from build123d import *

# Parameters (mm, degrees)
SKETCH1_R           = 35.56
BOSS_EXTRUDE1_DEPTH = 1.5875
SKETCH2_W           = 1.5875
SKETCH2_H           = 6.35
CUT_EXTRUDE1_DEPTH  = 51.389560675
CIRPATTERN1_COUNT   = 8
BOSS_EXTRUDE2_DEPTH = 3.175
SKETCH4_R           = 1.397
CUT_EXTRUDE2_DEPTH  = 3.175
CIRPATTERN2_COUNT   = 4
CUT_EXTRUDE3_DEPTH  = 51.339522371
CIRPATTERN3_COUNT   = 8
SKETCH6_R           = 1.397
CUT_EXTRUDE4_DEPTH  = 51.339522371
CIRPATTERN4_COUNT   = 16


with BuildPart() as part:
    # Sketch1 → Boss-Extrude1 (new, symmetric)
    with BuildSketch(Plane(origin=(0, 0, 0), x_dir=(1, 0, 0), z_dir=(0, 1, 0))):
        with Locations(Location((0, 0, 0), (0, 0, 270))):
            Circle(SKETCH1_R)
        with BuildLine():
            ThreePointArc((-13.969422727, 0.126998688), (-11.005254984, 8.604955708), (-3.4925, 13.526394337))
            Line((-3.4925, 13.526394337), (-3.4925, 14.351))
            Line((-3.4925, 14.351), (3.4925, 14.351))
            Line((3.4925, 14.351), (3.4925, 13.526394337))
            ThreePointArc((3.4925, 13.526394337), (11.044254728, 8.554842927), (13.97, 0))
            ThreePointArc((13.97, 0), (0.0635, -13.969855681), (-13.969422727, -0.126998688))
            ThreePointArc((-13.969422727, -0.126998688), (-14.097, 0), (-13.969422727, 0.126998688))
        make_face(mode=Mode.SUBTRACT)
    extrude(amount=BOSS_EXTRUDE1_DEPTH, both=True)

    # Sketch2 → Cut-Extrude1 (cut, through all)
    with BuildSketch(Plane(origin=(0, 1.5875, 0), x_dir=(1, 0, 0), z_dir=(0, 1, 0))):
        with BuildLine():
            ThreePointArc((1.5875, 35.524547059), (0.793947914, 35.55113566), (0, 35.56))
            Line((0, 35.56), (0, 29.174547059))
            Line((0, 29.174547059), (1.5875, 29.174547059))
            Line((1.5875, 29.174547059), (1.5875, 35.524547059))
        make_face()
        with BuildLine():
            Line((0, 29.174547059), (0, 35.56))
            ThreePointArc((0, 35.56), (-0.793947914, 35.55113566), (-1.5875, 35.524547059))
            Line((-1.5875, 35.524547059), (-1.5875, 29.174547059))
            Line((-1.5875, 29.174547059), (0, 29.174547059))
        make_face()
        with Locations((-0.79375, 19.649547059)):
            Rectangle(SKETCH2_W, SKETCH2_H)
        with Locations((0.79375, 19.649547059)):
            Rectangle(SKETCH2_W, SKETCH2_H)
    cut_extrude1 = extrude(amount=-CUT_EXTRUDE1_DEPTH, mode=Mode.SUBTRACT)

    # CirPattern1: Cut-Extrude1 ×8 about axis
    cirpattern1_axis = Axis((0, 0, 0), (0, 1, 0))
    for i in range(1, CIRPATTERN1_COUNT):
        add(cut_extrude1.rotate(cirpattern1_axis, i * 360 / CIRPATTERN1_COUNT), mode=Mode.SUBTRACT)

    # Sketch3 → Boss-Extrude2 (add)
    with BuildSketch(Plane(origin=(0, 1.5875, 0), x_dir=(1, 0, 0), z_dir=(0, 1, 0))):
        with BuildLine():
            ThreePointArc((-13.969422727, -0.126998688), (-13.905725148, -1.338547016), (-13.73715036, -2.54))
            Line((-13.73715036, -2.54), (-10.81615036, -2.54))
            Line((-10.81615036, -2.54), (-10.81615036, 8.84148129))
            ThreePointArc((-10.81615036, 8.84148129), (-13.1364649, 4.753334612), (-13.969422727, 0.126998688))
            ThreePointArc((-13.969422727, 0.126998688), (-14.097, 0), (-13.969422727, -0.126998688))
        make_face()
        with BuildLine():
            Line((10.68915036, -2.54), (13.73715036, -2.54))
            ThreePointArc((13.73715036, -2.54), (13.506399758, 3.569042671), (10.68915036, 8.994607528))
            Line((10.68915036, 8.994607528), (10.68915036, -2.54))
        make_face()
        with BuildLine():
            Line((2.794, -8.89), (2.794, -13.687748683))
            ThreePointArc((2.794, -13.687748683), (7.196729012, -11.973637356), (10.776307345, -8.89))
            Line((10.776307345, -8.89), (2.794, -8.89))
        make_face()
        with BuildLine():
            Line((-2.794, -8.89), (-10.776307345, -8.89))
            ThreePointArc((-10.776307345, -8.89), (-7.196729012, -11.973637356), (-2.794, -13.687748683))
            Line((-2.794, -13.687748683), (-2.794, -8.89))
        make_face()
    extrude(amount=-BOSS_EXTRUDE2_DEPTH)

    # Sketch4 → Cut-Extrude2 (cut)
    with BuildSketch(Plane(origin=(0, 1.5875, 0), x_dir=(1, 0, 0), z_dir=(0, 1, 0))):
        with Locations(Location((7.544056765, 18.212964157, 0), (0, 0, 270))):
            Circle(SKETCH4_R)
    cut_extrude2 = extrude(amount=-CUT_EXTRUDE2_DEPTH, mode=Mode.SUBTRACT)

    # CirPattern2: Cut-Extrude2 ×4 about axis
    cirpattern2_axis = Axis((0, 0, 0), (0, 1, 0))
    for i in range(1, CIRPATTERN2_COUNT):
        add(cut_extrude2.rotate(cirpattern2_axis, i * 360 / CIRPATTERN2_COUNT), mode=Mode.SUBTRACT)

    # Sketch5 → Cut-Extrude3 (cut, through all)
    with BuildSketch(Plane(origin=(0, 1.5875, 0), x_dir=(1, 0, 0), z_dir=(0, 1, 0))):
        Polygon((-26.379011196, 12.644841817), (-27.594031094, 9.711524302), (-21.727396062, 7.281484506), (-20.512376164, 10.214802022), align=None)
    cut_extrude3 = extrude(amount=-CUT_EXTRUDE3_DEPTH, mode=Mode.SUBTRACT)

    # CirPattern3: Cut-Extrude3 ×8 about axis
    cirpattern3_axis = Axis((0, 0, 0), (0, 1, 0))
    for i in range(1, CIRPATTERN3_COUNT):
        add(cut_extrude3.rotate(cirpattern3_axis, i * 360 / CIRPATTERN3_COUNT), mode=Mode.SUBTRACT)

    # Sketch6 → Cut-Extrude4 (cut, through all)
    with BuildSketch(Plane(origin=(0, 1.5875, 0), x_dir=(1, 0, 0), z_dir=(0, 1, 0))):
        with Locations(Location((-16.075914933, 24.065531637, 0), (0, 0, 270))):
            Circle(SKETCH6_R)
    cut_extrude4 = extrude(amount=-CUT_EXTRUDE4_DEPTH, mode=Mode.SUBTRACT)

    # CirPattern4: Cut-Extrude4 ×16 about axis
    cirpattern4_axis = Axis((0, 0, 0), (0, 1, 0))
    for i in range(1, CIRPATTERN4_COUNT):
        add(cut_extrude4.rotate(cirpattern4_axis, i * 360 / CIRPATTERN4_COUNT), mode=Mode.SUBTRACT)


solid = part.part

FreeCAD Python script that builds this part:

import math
import FreeCAD as App
import Part
import Sketcher
Q = App.Units.Quantity

doc = App.newDocument("Part")
body = doc.addObject("PartDesign::Body", "Body")

# Sketch on XZ plane
sketch1 = body.newObject("Sketcher::SketchObject", "Sketch")
sketch1.AttachmentSupport = (doc.getObject("XZ_Plane"), [""])
sketch1.MapMode = "FlatFace"
sketch1.addGeometry([
    Part.Circle(App.Vector(0, 0, 0), App.Vector(0, 0, 1), 35.56),  # 0
    Part.ArcOfCircle(Part.Circle(App.Vector(-13.97, 0, 0), App.Vector(0, 0, 1), 0.13), math.radians(90), math.radians(270)),  # 1
    Part.ArcOfCircle(Part.Circle(App.Vector(0, 0, 0), App.Vector(0, 0, 1), 13.97), math.radians(-179), math.radians(-104)),  # 2
    Part.LineSegment(App.Vector(-3.49, -13.53, 0), App.Vector(-3.49, -14.35, 0)),  # 3
    Part.LineSegment(App.Vector(-3.49, -14.35, 0), App.Vector(3.49, -14.35, 0)),  # 4
    Part.LineSegment(App.Vector(3.49, -14.35, 0), App.Vector(3.49, -13.53, 0)),  # 5
    Part.ArcOfCircle(Part.Circle(App.Vector(0, 0, 0), App.Vector(0, 0, 1), 13.97), math.radians(-76), math.radians(0)),  # 6
    Part.ArcOfCircle(Part.Circle(App.Vector(0, 0, 0), App.Vector(0, 0, 1), 13.97), math.radians(0), math.radians(179)),  # 7
], False)
sketch1.addConstraint([
    Sketcher.Constraint("Coincident", 1, 2, 2, 1),
    Sketcher.Constraint("Coincident", 2, 2, 3, 1),
    Sketcher.Constraint("Coincident", 3, 2, 4, 1),
    Sketcher.Constraint("Coincident", 4, 2, 5, 1),
    Sketcher.Constraint("Coincident", 5, 2, 6, 1),
    Sketcher.Constraint("Tangent", 6, 2, 7, 1),
    Sketcher.Constraint("Coincident", 7, 2, 1, 1),
    Sketcher.Constraint("Vertical", 3),
    Sketcher.Constraint("Horizontal", 4),
    Sketcher.Constraint("Vertical", 5),
    Sketcher.Constraint("Coincident", 0, 3, -1, 1),
    Sketcher.Constraint("Coincident", 2, 3, -1, 1),
    Sketcher.Constraint("Coincident", 6, 3, -1, 1),
    Sketcher.Constraint("Equal", 2, 6),
    Sketcher.Constraint("Equal", 6, 7),
    Sketcher.Constraint("PointOnObject", 1, 3, -1),
    Sketcher.Constraint("PointOnObject", 6, 2, -1),
    Sketcher.Constraint("Horizontal", 2, 2, 5, 2),
    Sketcher.Constraint("Diameter", 0, Q("2.8 in")),
    Sketcher.Constraint("Radius", 2, Q("0.55 in")),
    Sketcher.Constraint("Radius", 1, Q("0.005 in")),
    Sketcher.Constraint("DistanceX", 4, 1, 4, 2, Q("0.275 in")),
    Sketcher.Constraint("DistanceX", 1, 3, -1, 1, Q("0.55 in")),
    Sketcher.Constraint("DistanceY", 3, 2, -1, 1, Q("0.565 in")),
])
pad1 = body.newObject("PartDesign::Pad", "Pad")
pad1.Profile = sketch1
pad1.Length = Q("0.125 in")
pad1.Midplane = True

# Sketch on XZ plane
sketch2 = body.newObject("Sketcher::SketchObject", "Sketch001")
sketch2.AttachmentSupport = (doc.getObject("XZ_Plane"), [""])
sketch2.MapMode = "FlatFace"
sketch2.AttachmentOffset = App.Placement(App.Vector(0, 0, -0.0625 * 25.4), App.Rotation())
sketch2.addGeometry([
    Part.ArcOfCircle(Part.Circle(App.Vector(0, 0, 0), App.Vector(0, 0, 1), 35.6), math.radians(-90), math.radians(-87.44)),  # 0
    Part.ArcOfCircle(Part.Circle(App.Vector(0, 0, 0), App.Vector(0, 0, 1), 35.6), math.radians(-92.56), math.radians(-90)),  # 1
    Part.LineSegment(App.Vector(-1.6, -35.5, 0), App.Vector(-1.6, -29.2, 0)),  # 2
    Part.LineSegment(App.Vector(-1.6, -29.2, 0), App.Vector(1.6, -29.2, 0)),  # 3
    Part.LineSegment(App.Vector(1.6, -29.2, 0), App.Vector(1.6, -35.5, 0)),  # 4
    Part.LineSegment(App.Vector(-1.6, -22.8, 0), App.Vector(-1.6, -16.5, 0)),  # 5
    Part.LineSegment(App.Vector(-1.6, -16.5, 0), App.Vector(1.6, -16.5, 0)),  # 6
    Part.LineSegment(App.Vector(1.6, -16.5, 0), App.Vector(1.6, -22.8, 0)),  # 7
    Part.LineSegment(App.Vector(1.6, -22.8, 0), App.Vector(-1.6, -22.8, 0)),  # 8
], False)
sketch2.addConstraint([
    Sketcher.Constraint("Tangent", 0, 1, 1, 2),
    Sketcher.Constraint("Coincident", 1, 1, 2, 1),
    Sketcher.Constraint("Coincident", 2, 2, 3, 1),
    Sketcher.Constraint("Coincident", 3, 2, 4, 1),
    Sketcher.Constraint("Coincident", 4, 2, 0, 2),
    Sketcher.Constraint("Coincident", 5, 2, 6, 1),
    Sketcher.Constraint("Coincident", 6, 2, 7, 1),
    Sketcher.Constraint("Coincident", 7, 2, 8, 1),
    Sketcher.Constraint("Coincident", 8, 2, 5, 1),
    Sketcher.Constraint("Vertical", 2),
    Sketcher.Constraint("Horizontal", 3),
    Sketcher.Constraint("Vertical", 4),
    Sketcher.Constraint("Vertical", 5),
    Sketcher.Constraint("Horizontal", 6),
    Sketcher.Constraint("Vertical", 7),
    Sketcher.Constraint("Horizontal", 8),
    Sketcher.Constraint("Coincident", 0, 3, -1, 1),
    Sketcher.Constraint("Equal", 0, 1),
    Sketcher.Constraint("PointOnObject", 0, 1, -2),
    Sketcher.Constraint("Horizontal", 1, 1, 4, 2),
    Sketcher.Constraint("Vertical", 2, 2, 5, 2),
    Sketcher.Constraint("Vertical", 4, 2, 6, 2),
    Sketcher.Constraint("Equal", 4, 5),
    Sketcher.Constraint("Radius", 0, Q("1.4 in")),
    Sketcher.Constraint("DistanceY", 2, 1, 2, 2, Q("0.25 in")),
    Sketcher.Constraint("DistanceY", 2, 2, 5, 2, Q("0.5 in")),
    Sketcher.Constraint("DistanceX", 3, 1, 3, 2, Q("0.125 in")),
])
pocket1 = body.newObject("PartDesign::Pocket", "Pocket")
pocket1.Profile = sketch2
pocket1.Type = "ThroughAll"
pocket1.Reversed = True
doc.recompute()

polarpattern = body.newObject("PartDesign::PolarPattern", "PolarPattern")
polarpattern.Originals = [pocket1]
polarpattern.Axis = (doc.getObject("Y_Axis"), [""])
polarpattern.Angle = 360
polarpattern.Occurrences = 8
body.Tip = polarpattern

# Sketch on XZ plane
sketch3 = body.newObject("Sketcher::SketchObject", "Sketch002")
sketch3.AttachmentSupport = (doc.getObject("XZ_Plane"), [""])
sketch3.MapMode = "FlatFace"
sketch3.AttachmentOffset = App.Placement(App.Vector(0, 0, -0.0625 * 25.4), App.Rotation())
sketch3.addGeometry([
    Part.ArcOfCircle(Part.Circle(App.Vector(0, 0, 0), App.Vector(0, 0, 1), 13.97), math.radians(169.52), math.radians(179.48)),  # 0
    Part.LineSegment(App.Vector(-13.74, 2.54, 0), App.Vector(-10.82, 2.54, 0)),  # 1
    Part.LineSegment(App.Vector(-10.82, 2.54, 0), App.Vector(-10.82, -8.84, 0)),  # 2
    Part.ArcOfCircle(Part.Circle(App.Vector(0, 0, 0), App.Vector(0, 0, 1), 13.97), math.radians(-179), math.radians(-141)),  # 3
    Part.ArcOfCircle(Part.Circle(App.Vector(-13.97, 0, 0), App.Vector(0, 0, 1), 0.13), math.radians(90), math.radians(270)),  # 4
    Part.LineSegment(App.Vector(10.69, 2.54, 0), App.Vector(13.74, 2.54, 0)),  # 5
    Part.ArcOfCircle(Part.Circle(App.Vector(0, 0, 0), App.Vector(0, 0, 1), 13.97), math.radians(-40), math.radians(10)),  # 6
    Part.LineSegment(App.Vector(10.69, -8.99, 0), App.Vector(10.69, 2.54, 0)),  # 7
    Part.LineSegment(App.Vector(2.79, 8.89, 0), App.Vector(2.79, 13.69, 0)),  # 8
    Part.ArcOfCircle(Part.Circle(App.Vector(0, 0, 0), App.Vector(0, 0, 1), 13.97), math.radians(40), math.radians(78)),  # 9
    Part.LineSegment(App.Vector(10.78, 8.89, 0), App.Vector(2.79, 8.89, 0)),  # 10
    Part.LineSegment(App.Vector(-2.79, 8.89, 0), App.Vector(-10.78, 8.89, 0)),  # 11
    Part.ArcOfCircle(Part.Circle(App.Vector(0, 0, 0), App.Vector(0, 0, 1), 13.97), math.radians(102), math.radians(140)),  # 12
    Part.LineSegment(App.Vector(-2.79, 13.69, 0), App.Vector(-2.79, 8.89, 0)),  # 13
], False)
sketch3.addConstraint([
    Sketcher.Constraint("Coincident", 0, 1, 1, 1),
    Sketcher.Constraint("Coincident", 1, 2, 2, 1),
    Sketcher.Constraint("Coincident", 2, 2, 3, 2),
    Sketcher.Constraint("Coincident", 3, 1, 4, 2),
    Sketcher.Constraint("Coincident", 4, 1, 0, 2),
    Sketcher.Constraint("Coincident", 5, 2, 6, 2),
    Sketcher.Constraint("Coincident", 6, 1, 7, 1),
    Sketcher.Constraint("Coincident", 7, 2, 5, 1),
    Sketcher.Constraint("Coincident", 8, 2, 9, 2),
    Sketcher.Constraint("Coincident", 9, 1, 10, 1),
    Sketcher.Constraint("Coincident", 10, 2, 8, 1),
    Sketcher.Constraint("Coincident", 11, 2, 12, 2),
    Sketcher.Constraint("Coincident", 12, 1, 13, 1),
    Sketcher.Constraint("Coincident", 13, 2, 11, 1),
    Sketcher.Constraint("Horizontal", 1),
    Sketcher.Constraint("Vertical", 2),
    Sketcher.Constraint("Horizontal", 5),
    Sketcher.Constraint("Vertical", 7),
    Sketcher.Constraint("Vertical", 8),
    Sketcher.Constraint("Horizontal", 10),
    Sketcher.Constraint("Horizontal", 11),
    Sketcher.Constraint("Vertical", 13),
    Sketcher.Constraint("Coincident", 0, 3, -1, 1),
    Sketcher.Constraint("Coincident", 3, 3, -1, 1),
    Sketcher.Constraint("Coincident", 6, 3, -1, 1),
    Sketcher.Constraint("Coincident", 9, 3, -1, 1),
    Sketcher.Constraint("Coincident", 12, 3, -1, 1),
    Sketcher.Constraint("Equal", 0, 3),
    Sketcher.Constraint("Equal", 3, 6),
    Sketcher.Constraint("Equal", 6, 9),
    Sketcher.Constraint("Equal", 9, 12),
    Sketcher.Constraint("Symmetric", 10, 2, 13, 2, -2),
    Sketcher.Constraint("PointOnObject", 4, 3, -1),
    Sketcher.Constraint("Horizontal", 1, 2, 5, 2),
    Sketcher.Constraint("Radius", 0, Q("0.55 in")),
    Sketcher.Constraint("Radius", 4, Q("0.005 in")),
    Sketcher.Constraint("DistanceX", 5, 1, 5, 2, Q("0.12 in")),
    Sketcher.Constraint("DistanceY", -1, 1, 0, 1, Q("0.1 in")),
    Sketcher.Constraint("DistanceX", 1, 1, 1, 2, Q("0.115 in")),
    Sketcher.Constraint("DistanceX", 4, 3, -1, 1, Q("0.55 in")),
    Sketcher.Constraint("DistanceX", -1, 1, 8, 2, Q("0.11 in")),
    Sketcher.Constraint("DistanceY", -1, 1, 9, 1, Q("0.35 in")),
])
pad2 = body.newObject("PartDesign::Pad", "Pad001")
pad2.Profile = sketch3
pad2.Length = Q("0.125 in")

# Sketch on XZ plane
sketch4 = body.newObject("Sketcher::SketchObject", "Sketch003")
sketch4.AttachmentSupport = (doc.getObject("XZ_Plane"), [""])
sketch4.MapMode = "FlatFace"
sketch4.AttachmentOffset = App.Placement(App.Vector(0, 0, -0.0625 * 25.4), App.Rotation())
sketch4.addGeometry(Part.Circle(App.Vector(7.5, -18.2, 0), App.Vector(0, 0, 1), 1.4), False)
sketch4.addConstraint([
    Sketcher.Constraint("Diameter", 0, Q("0.11 in")),
    Sketcher.Constraint("DistanceX", -1, 1, 0, 3, Q("7.544057 mm")),
    Sketcher.Constraint("DistanceY", 0, 3, -1, 1, Q("18.212964 mm")),
])
pocket2 = body.newObject("PartDesign::Pocket", "Pocket001")
pocket2.Profile = sketch4
pocket2.Length = Q("0.125 in")
pocket2.Reversed = True
doc.recompute()

polarpattern2 = body.newObject("PartDesign::PolarPattern", "PolarPattern001")
polarpattern2.Originals = [pocket2]
polarpattern2.Axis = (doc.getObject("Y_Axis"), [""])
polarpattern2.Angle = 360
polarpattern2.Occurrences = 4
body.Tip = polarpattern2

# Sketch on XZ plane
sketch5 = body.newObject("Sketcher::SketchObject", "Sketch004")
sketch5.AttachmentSupport = (doc.getObject("XZ_Plane"), [""])
sketch5.MapMode = "FlatFace"
sketch5.AttachmentOffset = App.Placement(App.Vector(0, 0, -0.0625 * 25.4), App.Rotation())
sketch5.addGeometry([
    Part.LineSegment(App.Vector(-26.4, -12.6, 0), App.Vector(-27.6, -9.7, 0)),
    Part.LineSegment(App.Vector(-27.6, -9.7, 0), App.Vector(-21.7, -7.3, 0)),
    Part.LineSegment(App.Vector(-21.7, -7.3, 0), App.Vector(-20.5, -10.2, 0)),
    Part.LineSegment(App.Vector(-20.5, -10.2, 0), App.Vector(-26.4, -12.6, 0)),
], False)
sketch5.addConstraint([
    Sketcher.Constraint("Coincident", 0, 2, 1, 1),
    Sketcher.Constraint("Coincident", 1, 2, 2, 1),
    Sketcher.Constraint("Coincident", 2, 2, 3, 1),
    Sketcher.Constraint("Coincident", 3, 2, 0, 1),
    Sketcher.Constraint("Perpendicular", 0, 1),
    Sketcher.Constraint("Perpendicular", 1, 2),
    Sketcher.Constraint("Perpendicular", 2, 3),
    Sketcher.Constraint("Angle", 0, Q("112.5 deg")),
    Sketcher.Constraint("Distance", 1, Q("0.25 in")),
    Sketcher.Constraint("Distance", 0, Q("0.125 in")),
    Sketcher.Constraint("DistanceX", 0, 2, -1, 1, Q("27.594031 mm")),
    Sketcher.Constraint("DistanceY", 3, 2, -1, 1, Q("12.644842 mm")),
])
pocket3 = body.newObject("PartDesign::Pocket", "Pocket002")
pocket3.Profile = sketch5
pocket3.Type = "ThroughAll"
pocket3.Reversed = True
doc.recompute()

polarpattern3 = body.newObject("PartDesign::PolarPattern", "PolarPattern002")
polarpattern3.Originals = [pocket3]
polarpattern3.Axis = (doc.getObject("Y_Axis"), [""])
polarpattern3.Angle = 360
polarpattern3.Occurrences = 8
body.Tip = polarpattern3

# Sketch on XZ plane
sketch6 = body.newObject("Sketcher::SketchObject", "Sketch005")
sketch6.AttachmentSupport = (doc.getObject("XZ_Plane"), [""])
sketch6.MapMode = "FlatFace"
sketch6.AttachmentOffset = App.Placement(App.Vector(0, 0, -0.0625 * 25.4), App.Rotation())
sketch6.addGeometry(Part.Circle(App.Vector(-16.1, -24.1, 0), App.Vector(0, 0, 1), 1.4), False)
sketch6.addConstraint([
    Sketcher.Constraint("Diameter", 0, Q("0.11 in")),
    Sketcher.Constraint("DistanceY", 0, 3, -1, 1, Q("24.065532 mm")),
    Sketcher.Constraint("DistanceX", 0, 3, -1, 1, Q("16.075915 mm")),
])
pocket4 = body.newObject("PartDesign::Pocket", "Pocket003")
pocket4.Profile = sketch6
pocket4.Type = "ThroughAll"
pocket4.Reversed = True
doc.recompute()

polarpattern4 = body.newObject("PartDesign::PolarPattern", "PolarPattern003")
polarpattern4.Originals = [pocket4]
polarpattern4.Axis = (doc.getObject("Y_Axis"), [""])
polarpattern4.Angle = 360
polarpattern4.Occurrences = 16
body.Tip = polarpattern4

doc.recompute()
